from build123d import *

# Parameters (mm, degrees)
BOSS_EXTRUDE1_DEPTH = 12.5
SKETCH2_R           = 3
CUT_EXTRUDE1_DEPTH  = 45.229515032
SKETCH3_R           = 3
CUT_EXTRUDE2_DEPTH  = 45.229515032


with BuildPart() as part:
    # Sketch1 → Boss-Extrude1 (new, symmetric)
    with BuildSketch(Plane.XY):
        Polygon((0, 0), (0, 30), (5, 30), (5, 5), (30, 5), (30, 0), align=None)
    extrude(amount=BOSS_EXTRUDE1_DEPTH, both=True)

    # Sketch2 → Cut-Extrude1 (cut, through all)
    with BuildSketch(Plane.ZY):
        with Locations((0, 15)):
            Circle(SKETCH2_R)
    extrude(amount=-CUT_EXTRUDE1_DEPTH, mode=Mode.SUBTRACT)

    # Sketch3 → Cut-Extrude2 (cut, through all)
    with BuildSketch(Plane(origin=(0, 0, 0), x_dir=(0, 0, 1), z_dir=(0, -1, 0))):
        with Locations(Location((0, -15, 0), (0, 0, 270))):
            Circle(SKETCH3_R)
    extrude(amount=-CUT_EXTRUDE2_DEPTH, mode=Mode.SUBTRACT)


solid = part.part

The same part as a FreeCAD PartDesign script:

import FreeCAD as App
import Part
import Sketcher

V = App.Vector
Q = App.Units.Quantity


def add_polygon(sketch, points):
    """Adds a closed chain of lines whose ends are joined by coincident constraints."""
    first, n = sketch.GeometryCount, len(points)
    for a, b in zip(points, points[1:] + points[:1]):
        sketch.addGeometry(Part.LineSegment(App.Vector(*a, 0), App.Vector(*b, 0)), False)
    for i in range(n):
        sketch.addConstraint(Sketcher.Constraint("Coincident", first + i, 2, first + (i + 1) % n, 1))

doc = App.newDocument("Part")
body = doc.addObject("PartDesign::Body", "Body")

sketch1 = body.newObject("Sketcher::SketchObject", "Sketch")
sketch1.AttachmentSupport = (doc.getObject("XY_Plane"), [""])
sketch1.MapMode = "FlatFace"
add_polygon(sketch1, [(0, 30), (0, 0), (30, 0), (30, 5), (5, 5), (5, 30)])
sketch1.addConstraint([
    Sketcher.Constraint("Vertical", 0),
    Sketcher.Constraint("Horizontal", 1),
    Sketcher.Constraint("Vertical", 2),
    Sketcher.Constraint("Horizontal", 3),
    Sketcher.Constraint("Vertical", 4),
    Sketcher.Constraint("Horizontal", 5),
    Sketcher.Constraint("Coincident", 0, 2, -1, 1),
    Sketcher.Constraint("Equal", 1, 0),
    Sketcher.Constraint("Equal", 5, 2),
    Sketcher.Constraint("DistanceX", 1, 1, 1, 2, Q("30 mm")),
    Sketcher.Constraint("DistanceX", 3, 2, 3, 1, Q("25 mm")),
])
pad1 = body.newObject("PartDesign::Pad", "Pad")
pad1.Profile = sketch1
pad1.Length = 25
pad1.Midplane = True

sketch2 = body.newObject("Sketcher::SketchObject", "Sketch001")
sketch2.AttachmentSupport = (doc.getObject("YZ_Plane"), [""])
sketch2.MapMode = "FlatFace"
sketch2.addGeometry(Part.Circle(V(15, 0, 0), V(0, 0, 1), 3), False)
sketch2.addConstraint([
    Sketcher.Constraint("PointOnObject", 0, 3, -1),
    Sketcher.Constraint("Diameter", 0, Q("6 mm")),
    Sketcher.Constraint("DistanceX", -1, 1, 0, 3, Q("15 mm")),
])
pocket1 = body.newObject("PartDesign::Pocket", "Pocket")
pocket1.Profile = sketch2
pocket1.Type = "ThroughAll"
pocket1.Reversed = True

sketch3 = body.newObject("Sketcher::SketchObject", "Sketch002")
sketch3.AttachmentSupport = (doc.getObject("XZ_Plane"), [""])
sketch3.MapMode = "FlatFace"
sketch3.addGeometry(Part.Circle(V(15, 0, 0), V(0, 0, 1), 3), False)
sketch3.addConstraint([
    Sketcher.Constraint("PointOnObject", 0, 3, -1),
    Sketcher.Constraint("Diameter", 0, Q("6 mm")),
    Sketcher.Constraint("DistanceX", -1, 1, 0, 3, Q("15 mm")),
])
pocket2 = body.newObject("PartDesign::Pocket", "Pocket001")
pocket2.Profile = sketch3
pocket2.Type = "ThroughAll"

doc.recompute()
